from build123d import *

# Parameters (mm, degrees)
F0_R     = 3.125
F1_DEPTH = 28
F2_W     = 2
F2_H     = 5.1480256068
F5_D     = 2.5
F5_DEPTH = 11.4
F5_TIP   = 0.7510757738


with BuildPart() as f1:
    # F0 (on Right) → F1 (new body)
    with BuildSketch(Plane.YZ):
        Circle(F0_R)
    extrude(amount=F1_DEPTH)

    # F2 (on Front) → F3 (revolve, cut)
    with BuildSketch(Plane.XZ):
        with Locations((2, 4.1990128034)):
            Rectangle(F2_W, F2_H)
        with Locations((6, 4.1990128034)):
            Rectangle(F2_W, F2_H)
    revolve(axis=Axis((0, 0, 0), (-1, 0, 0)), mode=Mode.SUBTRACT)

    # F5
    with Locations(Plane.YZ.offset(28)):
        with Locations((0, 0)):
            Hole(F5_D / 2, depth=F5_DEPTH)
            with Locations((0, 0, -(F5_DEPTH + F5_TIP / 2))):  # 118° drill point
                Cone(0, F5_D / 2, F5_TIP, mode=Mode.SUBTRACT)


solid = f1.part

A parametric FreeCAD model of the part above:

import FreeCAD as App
import Part
import Sketcher
Q = App.Units.Quantity

doc = App.newDocument("Part")
body = doc.addObject("PartDesign::Body", "Body")

sketch1 = body.newObject("Sketcher::SketchObject", "Sketch")
sketch1.AttachmentSupport = (doc.getObject("YZ_Plane"), [""])
sketch1.MapMode = "FlatFace"
sketch1.addGeometry(Part.Circle(App.Vector(0, 0, 0), App.Vector(0, 0, 1), 3.1), False)
sketch1.addConstraint([
    Sketcher.Constraint("Coincident", 0, 3, -1, 1),
    Sketcher.Constraint("Diameter", 0, Q("6.25 mm")),
])
pad1 = body.newObject("PartDesign::Pad", "Pad")
pad1.Profile = sketch1
pad1.Length = 28

sketch2 = body.newObject("Sketcher::SketchObject", "Sketch001")
sketch2.AttachmentSupport = (doc.getObject("XZ_Plane"), [""])
sketch2.MapMode = "FlatFace"
sketch2.addGeometry([
    Part.LineSegment(App.Vector(1, 6.8, 0), App.Vector(1, 1.6, 0)),
    Part.LineSegment(App.Vector(1, 1.6, 0), App.Vector(3, 1.6, 0)),
    Part.LineSegment(App.Vector(3, 1.6, 0), App.Vector(3, 6.8, 0)),
    Part.LineSegment(App.Vector(3, 6.8, 0), App.Vector(1, 6.8, 0)),
    Part.LineSegment(App.Vector(5, 6.8, 0), App.Vector(5, 1.6, 0)),
    Part.LineSegment(App.Vector(5, 1.6, 0), App.Vector(7, 1.6, 0)),
    Part.LineSegment(App.Vector(7, 1.6, 0), App.Vector(7, 6.8, 0)),
    Part.LineSegment(App.Vector(7, 6.8, 0), App.Vector(5, 6.8, 0)),
], False)
sketch2.addConstraint([
    Sketcher.Constraint("Coincident", 0, 2, 1, 1),
    Sketcher.Constraint("Coincident", 1, 2, 2, 1),
    Sketcher.Constraint("Coincident", 2, 2, 3, 1),
    Sketcher.Constraint("Coincident", 3, 2, 0, 1),
    Sketcher.Constraint("Coincident", 4, 2, 5, 1),
    Sketcher.Constraint("Coincident", 5, 2, 6, 1),
    Sketcher.Constraint("Coincident", 6, 2, 7, 1),
    Sketcher.Constraint("Coincident", 7, 2, 4, 1),
    Sketcher.Constraint("Vertical", 0),
    Sketcher.Constraint("Horizontal", 1),
    Sketcher.Constraint("Vertical", 2),
    Sketcher.Constraint("Horizontal", 3),
    Sketcher.Constraint("Vertical", 4),
    Sketcher.Constraint("Horizontal", 5),
    Sketcher.Constraint("Vertical", 6),
    Sketcher.Constraint("Horizontal", 7),
    Sketcher.Constraint("Horizontal", 1, 2, 4, 2),
    Sketcher.Constraint("Horizontal", 3, 2, 6, 2),
    Sketcher.Constraint("Equal", 3, 5),
    Sketcher.Constraint("DistanceX", 1, 1, 1, 2, Q("2 mm")),
    Sketcher.Constraint("DistanceX", -1, 1, 0, 2, Q("1 mm")),
    Sketcher.Constraint("DistanceX", -1, 1, 4, 2, Q("5 mm")),
    Sketcher.Constraint("DistanceY", -1, 1, 0, 2, Q("1.625 mm")),
    Sketcher.Constraint("DistanceY", 0, 2, 0, 1, Q("5.148026 mm")),
])
groove = body.newObject("PartDesign::Groove", "Groove")
groove.Profile = sketch2
groove.ReferenceAxis = (sketch2, ["H_Axis"])
groove.Angle = 360

sketch3 = body.newObject("Sketcher::SketchObject", "Sketch002")
sketch3.AttachmentSupport = (doc.getObject("YZ_Plane"), [""])
sketch3.MapMode = "FlatFace"
sketch3.AttachmentOffset = App.Placement(App.Vector(0, 0, 28), App.Rotation())
sketch3.addGeometry(Part.Circle(App.Vector(0, 0, 0), App.Vector(0, 0, 1), 1.2), False)
sketch3.addConstraint([
    Sketcher.Constraint("Coincident", 0, 3, -1, 1),
    Sketcher.Constraint("Diameter", 0, Q("2.5 mm")),
])
doc.recompute()
hole = body.newObject("PartDesign::Hole", "Hole")
hole.Profile = sketch3
hole.ThreadType = "None"
hole.Diameter = 2.5
hole.DepthType = "Dimension"
hole.Depth = 11.4
hole.DrillPoint = "Angled"
hole.DrillPointAngle = 118

doc.recompute()
